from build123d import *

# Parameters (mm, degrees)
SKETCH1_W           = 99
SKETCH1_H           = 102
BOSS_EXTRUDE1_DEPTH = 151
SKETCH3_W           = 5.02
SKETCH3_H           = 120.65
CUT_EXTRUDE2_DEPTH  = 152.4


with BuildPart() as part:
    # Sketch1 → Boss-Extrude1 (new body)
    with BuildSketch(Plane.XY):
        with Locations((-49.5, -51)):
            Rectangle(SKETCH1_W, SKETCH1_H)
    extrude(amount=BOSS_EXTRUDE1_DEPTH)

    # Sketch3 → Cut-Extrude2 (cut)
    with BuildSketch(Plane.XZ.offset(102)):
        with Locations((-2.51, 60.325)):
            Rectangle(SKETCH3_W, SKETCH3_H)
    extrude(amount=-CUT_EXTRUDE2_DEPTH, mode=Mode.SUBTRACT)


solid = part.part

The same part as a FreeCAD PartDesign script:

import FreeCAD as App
import Part
import Sketcher


def add_polygon(sketch, points):
    """Adds a closed chain of lines whose ends are joined by coincident constraints."""
    first, n = sketch.GeometryCount, len(points)
    for a, b in zip(points, points[1:] + points[:1]):
        sketch.addGeometry(Part.LineSegment(App.Vector(*a, 0), App.Vector(*b, 0)), False)
    for i in range(n):
        sketch.addConstraint(Sketcher.Constraint("Coincident", first + i, 2, first + (i + 1) % n, 1))

doc = App.newDocument("Part")
body = doc.addObject("PartDesign::Body", "Body")

sketch1 = doc.addObject("Sketcher::SketchObject", "Sketch")
body.addObject(sketch1)
sketch1.AttachmentSupport = (doc.XY_Plane, [""])
sketch1.MapMode = "FlatFace"
add_polygon(sketch1, [(-99, 0), (-99, -102), (0, -102), (0, 0)])
sketch1.addConstraint(Sketcher.Constraint("Vertical", 0))
sketch1.addConstraint(Sketcher.Constraint("Horizontal", 1))
sketch1.addConstraint(Sketcher.Constraint("Vertical", 2))
sketch1.addConstraint(Sketcher.Constraint("Horizontal", 3))
sketch1.addConstraint(Sketcher.Constraint("Coincident", 2, 2, -1, 1))
sketch1.addConstraint(Sketcher.Constraint("DistanceX", 1, 1, 1, 2, 99.0))
sketch1.addConstraint(Sketcher.Constraint("DistanceY", 0, 2, 0, 1, 102.0))
pad1 = doc.addObject("PartDesign::Pad", "Pad")
body.addObject(pad1)
pad1.Profile = sketch1
pad1.Length = 151

sketch2 = doc.addObject("Sketcher::SketchObject", "Sketch001")
body.addObject(sketch2)
sketch2.AttachmentSupport = (doc.XZ_Plane, [""])
sketch2.MapMode = "FlatFace"
sketch2.AttachmentOffset = App.Placement(App.Vector(0, 0, 102), App.Rotation())
add_polygon(sketch2, [(-5, 121), (-5, 0), (0, 0), (0, 121)])
sketch2.addConstraint(Sketcher.Constraint("Vertical", 0))
sketch2.addConstraint(Sketcher.Constraint("Horizontal", 1))
sketch2.addConstraint(Sketcher.Constraint("Vertical", 2))
sketch2.addConstraint(Sketcher.Constraint("Horizontal", 3))
sketch2.addConstraint(Sketcher.Constraint("Coincident", 1, 2, -1, 1))
sketch2.addConstraint(Sketcher.Constraint("DistanceX", 1, 1, 1, 2, 5.02))
sketch2.addConstraint(Sketcher.Constraint("DistanceY", 0, 2, 0, 1, 120.65))
pocket1 = doc.addObject("PartDesign::Pocket", "Pocket")
body.addObject(pocket1)
pocket1.Profile = sketch2
pocket1.Length = 152.4

doc.recompute()
